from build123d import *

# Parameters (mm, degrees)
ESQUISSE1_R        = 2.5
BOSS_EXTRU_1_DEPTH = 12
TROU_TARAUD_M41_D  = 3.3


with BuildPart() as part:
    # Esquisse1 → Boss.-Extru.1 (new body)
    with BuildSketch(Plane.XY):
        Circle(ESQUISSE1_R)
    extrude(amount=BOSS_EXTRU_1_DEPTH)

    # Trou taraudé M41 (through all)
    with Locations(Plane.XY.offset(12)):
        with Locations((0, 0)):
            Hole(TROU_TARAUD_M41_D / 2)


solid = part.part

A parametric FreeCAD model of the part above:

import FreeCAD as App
import Part
import Sketcher
from FreeCAD import Vector

doc = App.newDocument("Part")
params = doc.addObject("Spreadsheet::Sheet", "Params")
for row, (alias, value) in enumerate([
    ("sketch1_diameter", "5 mm"),
    ("pad1_length", "12 mm"),
    ("sketch2_diameter", "3.3 mm"),
    ("hole_diameter", "3.3 mm"),
], start=1):
    params.set(f"A{row}", alias)
    params.set(f"B{row}", "=" + value)
    params.setAlias(f"B{row}", alias)

body = doc.addObject("PartDesign::Body", "Body")

# Sketch on XY plane
sketch1 = body.newObject("Sketcher::SketchObject", "Sketch")
sketch1.AttachmentSupport = (doc.getObject("XY_Plane"), [""])
sketch1.MapMode = "FlatFace"
sketch1.addGeometry(Part.Circle(Vector(0, 0, 0), Vector(0, 0, 1), 2.5), False)
sketch1.addConstraint([
    Sketcher.Constraint("Coincident", 0, 3, -1, 1),
    Sketcher.Constraint("Diameter", 0, 5.0),
])
sketch1.setExpression("Constraints[1]", "Params.sketch1_diameter")
pad1 = body.newObject("PartDesign::Pad", "Pad")
pad1.Profile = sketch1
pad1.setExpression("Length", "Params.pad1_length")

# Sketch on XY plane
sketch2 = body.newObject("Sketcher::SketchObject", "Sketch001")
sketch2.AttachmentSupport = (doc.getObject("XY_Plane"), [""])
sketch2.MapMode = "FlatFace"
sketch2.AttachmentOffset = App.Placement(Vector(0, 0, 12), App.Rotation())
sketch2.addGeometry(Part.Circle(Vector(0, 0, 0), Vector(0, 0, 1), 1.6), False)
sketch2.addConstraint([
    Sketcher.Constraint("Coincident", 0, 3, -1, 1),
    Sketcher.Constraint("Diameter", 0, 3.3),
])
sketch2.setExpression("Constraints[1]", "Params.sketch2_diameter")
doc.recompute()
hole = body.newObject("PartDesign::Hole", "Hole")
hole.Profile = sketch2
hole.ThreadType = "None"
hole.setExpression("Diameter", "Params.hole_diameter")
hole.DepthType = "ThroughAll"

doc.recompute()
